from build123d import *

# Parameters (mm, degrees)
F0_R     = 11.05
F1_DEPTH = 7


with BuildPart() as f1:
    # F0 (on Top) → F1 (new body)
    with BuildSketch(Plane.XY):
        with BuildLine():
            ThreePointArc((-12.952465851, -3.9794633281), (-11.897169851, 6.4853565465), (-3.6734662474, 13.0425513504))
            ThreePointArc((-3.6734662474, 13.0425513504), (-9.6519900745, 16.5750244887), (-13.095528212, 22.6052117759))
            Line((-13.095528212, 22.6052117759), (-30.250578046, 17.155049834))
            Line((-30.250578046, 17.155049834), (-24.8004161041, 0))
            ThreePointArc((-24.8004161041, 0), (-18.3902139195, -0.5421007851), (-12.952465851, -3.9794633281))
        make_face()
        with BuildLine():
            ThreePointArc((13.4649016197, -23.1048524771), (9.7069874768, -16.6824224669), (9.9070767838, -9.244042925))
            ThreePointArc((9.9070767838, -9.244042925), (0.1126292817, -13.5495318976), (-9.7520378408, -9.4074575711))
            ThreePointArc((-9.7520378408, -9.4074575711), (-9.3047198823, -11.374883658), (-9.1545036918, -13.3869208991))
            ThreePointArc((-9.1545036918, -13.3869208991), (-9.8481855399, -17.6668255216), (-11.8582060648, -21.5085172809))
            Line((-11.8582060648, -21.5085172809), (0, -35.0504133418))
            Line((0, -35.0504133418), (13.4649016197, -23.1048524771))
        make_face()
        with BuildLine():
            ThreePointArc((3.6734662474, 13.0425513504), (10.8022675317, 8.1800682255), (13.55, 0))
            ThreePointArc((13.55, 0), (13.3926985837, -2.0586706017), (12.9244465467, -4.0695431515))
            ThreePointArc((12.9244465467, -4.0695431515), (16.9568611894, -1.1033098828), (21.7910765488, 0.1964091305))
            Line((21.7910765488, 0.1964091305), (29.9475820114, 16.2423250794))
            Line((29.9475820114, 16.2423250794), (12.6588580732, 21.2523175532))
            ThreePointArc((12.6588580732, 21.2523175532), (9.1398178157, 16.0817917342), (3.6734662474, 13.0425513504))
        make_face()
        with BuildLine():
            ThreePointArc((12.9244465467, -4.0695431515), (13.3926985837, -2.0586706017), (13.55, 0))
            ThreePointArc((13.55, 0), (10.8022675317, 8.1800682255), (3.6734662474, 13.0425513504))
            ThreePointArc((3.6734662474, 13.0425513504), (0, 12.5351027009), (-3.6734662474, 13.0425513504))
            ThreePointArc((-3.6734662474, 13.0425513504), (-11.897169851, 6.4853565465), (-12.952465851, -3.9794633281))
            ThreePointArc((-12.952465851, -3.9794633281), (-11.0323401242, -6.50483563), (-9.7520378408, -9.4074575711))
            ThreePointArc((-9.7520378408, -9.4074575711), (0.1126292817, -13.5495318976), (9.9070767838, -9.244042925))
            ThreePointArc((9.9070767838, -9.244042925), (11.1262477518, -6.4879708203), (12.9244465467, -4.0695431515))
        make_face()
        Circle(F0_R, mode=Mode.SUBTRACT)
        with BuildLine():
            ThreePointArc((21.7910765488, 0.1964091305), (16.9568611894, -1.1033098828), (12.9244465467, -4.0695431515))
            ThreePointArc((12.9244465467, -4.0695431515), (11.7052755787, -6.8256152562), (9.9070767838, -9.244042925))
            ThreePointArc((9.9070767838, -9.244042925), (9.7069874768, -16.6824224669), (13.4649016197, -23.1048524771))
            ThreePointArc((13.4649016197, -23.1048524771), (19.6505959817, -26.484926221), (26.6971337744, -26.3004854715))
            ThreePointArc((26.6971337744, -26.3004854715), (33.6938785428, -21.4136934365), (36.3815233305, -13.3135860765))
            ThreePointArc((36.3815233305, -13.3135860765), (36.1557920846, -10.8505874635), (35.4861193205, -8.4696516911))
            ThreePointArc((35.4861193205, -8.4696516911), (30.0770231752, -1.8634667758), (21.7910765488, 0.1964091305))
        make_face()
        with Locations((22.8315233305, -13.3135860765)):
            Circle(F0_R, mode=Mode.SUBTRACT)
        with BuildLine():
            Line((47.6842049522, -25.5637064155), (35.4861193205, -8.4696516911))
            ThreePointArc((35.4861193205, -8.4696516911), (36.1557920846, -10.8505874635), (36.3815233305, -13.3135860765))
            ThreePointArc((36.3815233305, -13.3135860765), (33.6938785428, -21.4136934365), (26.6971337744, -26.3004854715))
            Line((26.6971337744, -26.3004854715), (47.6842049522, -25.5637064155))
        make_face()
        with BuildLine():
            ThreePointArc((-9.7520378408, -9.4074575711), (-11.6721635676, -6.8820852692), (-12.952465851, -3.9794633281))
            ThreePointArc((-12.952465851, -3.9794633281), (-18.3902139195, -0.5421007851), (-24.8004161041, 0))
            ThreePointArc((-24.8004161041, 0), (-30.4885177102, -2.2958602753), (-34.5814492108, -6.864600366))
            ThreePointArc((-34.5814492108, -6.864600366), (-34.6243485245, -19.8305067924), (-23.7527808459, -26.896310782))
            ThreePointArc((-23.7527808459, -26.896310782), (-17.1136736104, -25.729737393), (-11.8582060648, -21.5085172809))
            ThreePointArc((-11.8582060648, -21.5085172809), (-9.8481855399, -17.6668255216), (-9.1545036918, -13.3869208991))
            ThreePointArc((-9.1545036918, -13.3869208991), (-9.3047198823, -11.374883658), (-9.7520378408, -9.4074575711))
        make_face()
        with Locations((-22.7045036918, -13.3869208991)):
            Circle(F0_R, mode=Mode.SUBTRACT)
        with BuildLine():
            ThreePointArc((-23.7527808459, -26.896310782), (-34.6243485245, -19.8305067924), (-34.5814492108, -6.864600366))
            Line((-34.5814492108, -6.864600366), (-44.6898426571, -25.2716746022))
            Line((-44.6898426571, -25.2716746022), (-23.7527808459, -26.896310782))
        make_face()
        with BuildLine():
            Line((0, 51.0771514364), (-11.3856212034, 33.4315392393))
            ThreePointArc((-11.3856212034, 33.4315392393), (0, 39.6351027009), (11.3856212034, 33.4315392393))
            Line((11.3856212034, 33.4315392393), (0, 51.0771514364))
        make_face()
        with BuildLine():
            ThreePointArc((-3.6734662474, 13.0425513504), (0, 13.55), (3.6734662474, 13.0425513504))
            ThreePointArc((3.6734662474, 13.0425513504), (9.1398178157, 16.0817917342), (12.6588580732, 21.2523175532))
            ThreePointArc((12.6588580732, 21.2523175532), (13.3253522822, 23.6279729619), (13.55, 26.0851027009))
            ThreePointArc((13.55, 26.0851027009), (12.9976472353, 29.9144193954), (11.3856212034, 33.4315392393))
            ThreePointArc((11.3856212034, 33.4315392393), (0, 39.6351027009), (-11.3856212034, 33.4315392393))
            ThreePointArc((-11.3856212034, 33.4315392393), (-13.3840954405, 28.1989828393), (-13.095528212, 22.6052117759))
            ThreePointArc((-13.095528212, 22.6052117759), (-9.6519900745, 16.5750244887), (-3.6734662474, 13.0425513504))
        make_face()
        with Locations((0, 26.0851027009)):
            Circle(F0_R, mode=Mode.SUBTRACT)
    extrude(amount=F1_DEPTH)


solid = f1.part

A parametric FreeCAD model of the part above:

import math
import FreeCAD as App
import Part
import Sketcher
Q = App.Units.Quantity

doc = App.newDocument("Part")
params = doc.addObject("Spreadsheet::Sheet", "Params")
for row, (alias, value) in enumerate([
    ("sketch1_diameter", "22.1 mm"),
    ("sketch1_radius", "13.55 mm"),
    ("sketch1_length", "18 mm"),
    ("sketch1_length2", "21 mm"),
    ("pad1_length", "7 mm"),
], start=1):
    params.set(f"A{row}", alias)
    params.set(f"B{row}", "=" + value)
    params.setAlias(f"B{row}", alias)

body = doc.addObject("PartDesign::Body", "Body")

sketch1 = doc.addObject("Sketcher::SketchObject", "Sketch")
body.addObject(sketch1)
sketch1.AttachmentSupport = (doc.XY_Plane, [""])
sketch1.MapMode = "FlatFace"
sketch1.addGeometry([
    Part.LineSegment(App.Vector(-13.1, 22.6, 0), App.Vector(-30.3, 17.2, 0)),
    Part.LineSegment(App.Vector(-30.3, 17.2, 0), App.Vector(-24.8, 0, 0)),
    Part.ArcOfCircle(Part.Circle(App.Vector(-22.7, -13.4, 0), App.Vector(0, 0, 1), 13.6), math.radians(99), math.radians(151)),
    Part.LineSegment(App.Vector(-34.6, -6.9, 0), App.Vector(-44.7, -25.3, 0)),
    Part.LineSegment(App.Vector(-44.7, -25.3, 0), App.Vector(-23.8, -26.9, 0)),
    Part.ArcOfCircle(Part.Circle(App.Vector(-22.7, -13.4, 0), App.Vector(0, 0, 1), 13.6), math.radians(-94), math.radians(-37)),
    Part.LineSegment(App.Vector(-11.9, -21.5, 0), App.Vector(0, -35.1, 0)),
    Part.LineSegment(App.Vector(0, -35.1, 0), App.Vector(13.5, -23.1, 0)),
    Part.ArcOfCircle(Part.Circle(App.Vector(22.8, -13.3, 0), App.Vector(0, 0, 1), 13.6), math.radians(-134), math.radians(-73)),
    Part.LineSegment(App.Vector(26.7, -26.3, 0), App.Vector(47.7, -25.6, 0)),
    Part.LineSegment(App.Vector(47.7, -25.6, 0), App.Vector(35.5, -8.5, 0)),
    Part.ArcOfCircle(Part.Circle(App.Vector(22.8, -13.3, 0), App.Vector(0, 0, 1), 13.6), math.radians(21), math.radians(94)),
    Part.LineSegment(App.Vector(21.8, 0.2, 0), App.Vector(29.9, 16.2, 0)),
    Part.LineSegment(App.Vector(29.9, 16.2, 0), App.Vector(12.7, 21.3, 0)),
    Part.ArcOfCircle(Part.Circle(App.Vector(0, 26.1, 0), App.Vector(0, 0, 1), 13.6), math.radians(-21), math.radians(0)),
    Part.ArcOfCircle(Part.Circle(App.Vector(0, 26.1, 0), App.Vector(0, 0, 1), 13.6), math.radians(0), math.radians(33)),
    Part.LineSegment(App.Vector(11.4, 33.4, 0), App.Vector(0, 51.1, 0)),
    Part.LineSegment(App.Vector(0, 51.1, 0), App.Vector(-11.4, 33.4, 0)),
    Part.ArcOfCircle(Part.Circle(App.Vector(0, 26.1, 0), App.Vector(0, 0, 1), 13.6), math.radians(147), math.radians(195)),
    Part.Circle(App.Vector(-22.7, -13.4, 0), App.Vector(0, 0, 1), 11.1),
    Part.ArcOfCircle(Part.Circle(App.Vector(-22.7, -13.4, 0), App.Vector(0, 0, 1), 13.5), math.radians(17), math.radians(44)),
    Part.ArcOfCircle(Part.Circle(App.Vector(0, 0, 0), App.Vector(0, 0, 1), 13.5), math.radians(-163), math.radians(-136)),
    Part.Circle(App.Vector(0, 0, 0), App.Vector(0, 0, 1), 11.1),
    Part.Circle(App.Vector(22.8, -13.3, 0), App.Vector(0, 0, 1), 11.1),
    Part.ArcOfCircle(Part.Circle(App.Vector(22.8, -13.3, 0), App.Vector(0, 0, 1), 13.6), math.radians(137), math.radians(163)),
    Part.ArcOfCircle(Part.Circle(App.Vector(0, 0, 0), App.Vector(0, 0, 1), 13.6), math.radians(-43), math.radians(-17)),
    Part.ArcOfCircle(Part.Circle(App.Vector(0, 26.1, 0), App.Vector(0, 0, 1), 13.6), math.radians(-106), math.radians(-74)),
    Part.ArcOfCircle(Part.Circle(App.Vector(0, 0, 0), App.Vector(0, 0, 1), 13.5), math.radians(74), math.radians(106)),
    Part.Circle(App.Vector(0, 26.1, 0), App.Vector(0, 0, 1), 11.1),
], False)
sketch1.addConstraint([
    Sketcher.Constraint("Coincident", 0, 2, 1, 1),
    Sketcher.Constraint("Coincident", 1, 2, 2, 1),
    Sketcher.Constraint("Tangent", 2, 2, 3, 1),
    Sketcher.Constraint("Coincident", 3, 2, 4, 1),
    Sketcher.Constraint("Tangent", 4, 2, 5, 1),
    Sketcher.Constraint("Coincident", 5, 2, 6, 1),
    Sketcher.Constraint("Coincident", 6, 2, 7, 1),
    Sketcher.Constraint("Coincident", 7, 2, 8, 1),
    Sketcher.Constraint("Coincident", 8, 2, 9, 1),
    Sketcher.Constraint("Coincident", 9, 2, 10, 1),
    Sketcher.Constraint("Coincident", 10, 2, 11, 1),
    Sketcher.Constraint("Coincident", 11, 2, 12, 1),
    Sketcher.Constraint("Coincident", 12, 2, 13, 1),
    Sketcher.Constraint("Coincident", 13, 2, 14, 1),
    Sketcher.Constraint("Tangent", 14, 2, 15, 1),
    Sketcher.Constraint("Tangent", 15, 2, 16, 1),
    Sketcher.Constraint("Coincident", 16, 2, 17, 1),
    Sketcher.Constraint("Tangent", 17, 2, 18, 1),
    Sketcher.Constraint("Coincident", 18, 2, 0, 1),
    Sketcher.Constraint("Coincident", 20, 1, 21, 2),
    Sketcher.Constraint("Coincident", 21, 1, 20, 2),
    Sketcher.Constraint("Coincident", 24, 1, 25, 2),
    Sketcher.Constraint("Coincident", 25, 1, 24, 2),
    Sketcher.Constraint("Coincident", 26, 1, 27, 2),
    Sketcher.Constraint("Coincident", 27, 1, 26, 2),
    Sketcher.Constraint("Coincident", 21, 3, -1, 1),
    Sketcher.Constraint("Coincident", 22, 3, -1, 1),
    Sketcher.Constraint("Coincident", 25, 3, -1, 1),
    Sketcher.Constraint("Coincident", 27, 3, -1, 1),
    Sketcher.Constraint("Coincident", 5, 3, 2, 3),
    Sketcher.Constraint("Coincident", 11, 3, 8, 3),
    Sketcher.Constraint("Coincident", 18, 3, 14, 3),
    Sketcher.Constraint("Coincident", 19, 3, 2, 3),
    Sketcher.Constraint("Coincident", 20, 3, 2, 3),
    Sketcher.Constraint("Coincident", 23, 3, 8, 3),
    Sketcher.Constraint("Coincident", 24, 3, 8, 3),
    Sketcher.Constraint("Coincident", 26, 3, 14, 3),
    Sketcher.Constraint("Coincident", 28, 3, 14, 3),
    Sketcher.Constraint("Equal", 2, 5),
    Sketcher.Constraint("Equal", 5, 8),
    Sketcher.Constraint("Equal", 8, 11),
    Sketcher.Constraint("Equal", 11, 14),
    Sketcher.Constraint("Equal", 14, 15),
    Sketcher.Constraint("Equal", 15, 18),
    Sketcher.Constraint("Equal", 18, 20),
    Sketcher.Constraint("Equal", 20, 21),
    Sketcher.Constraint("Equal", 19, 22),
    Sketcher.Constraint("Equal", 22, 23),
    Sketcher.Constraint("Equal", 21, 24),
    Sketcher.Constraint("Equal", 24, 25),
    Sketcher.Constraint("Equal", 25, 26),
    Sketcher.Constraint("Equal", 26, 27),
    Sketcher.Constraint("Equal", 23, 28),
    Sketcher.Constraint("Symmetric", 15, 2, 17, 2, -2),
    Sketcher.Constraint("PointOnObject", 1, 2, -1),
    Sketcher.Constraint("PointOnObject", 6, 2, -2),
    Sketcher.Constraint("Perpendicular", 0, 1),
    Sketcher.Constraint("Horizontal", 28, 3, 14, 2),
    Sketcher.Constraint("Equal", 0, 1),
    Sketcher.Constraint("Equal", 1, 6),
    Sketcher.Constraint("Equal", 6, 7),
    Sketcher.Constraint("Equal", 4, 9),
    Sketcher.Constraint("Equal", 9, 10),
    Sketcher.Constraint("Equal", 7, 12),
    Sketcher.Constraint("Equal", 12, 13),
    Sketcher.Constraint("Equal", 10, 16),
    Sketcher.Constraint("Diameter", 19, Q("22.1 mm")),
    Sketcher.Constraint("Radius", 2, Q("13.55 mm")),
    Sketcher.Constraint("Distance", 0, Q("18 mm")),
    Sketcher.Constraint("Distance", 3, Q("21 mm")),
    Sketcher.Constraint("DistanceY", 2, 2, -1, 1, Q("6.8646 mm")),
    Sketcher.Constraint("DistanceX", -1, 1, 7, 2, Q("13.464902 mm")),
    Sketcher.Constraint("DistanceY", 8, 2, 24, 3, Q("12.986899 mm")),
    Sketcher.Constraint("DistanceY", 25, 1, 24, 1, Q("5.1745 mm")),
    Sketcher.Constraint("DistanceY", 2, 3, -1, 1, Q("13.386921 mm")),
    Sketcher.Constraint("DistanceX", 0, 2, -1, 1, Q("30.250578 mm")),
    Sketcher.Constraint("DistanceY", -1, 1, 0, 2, Q("17.15505 mm")),
    Sketcher.Constraint("DistanceX", -1, 1, 10, 2, Q("35.486119 mm")),
    Sketcher.Constraint("DistanceY", 10, 2, -1, 1, Q("8.469652 mm")),
    Sketcher.Constraint("DistanceY", -1, 1, 11, 2, Q("0.196409 mm")),
    Sketcher.Constraint("DistanceX", -1, 1, 13, 2, Q("12.658858 mm")),
])
sketch1.setExpression("Constraints[66]", "Params.sketch1_diameter")
sketch1.setExpression("Constraints[67]", "Params.sketch1_radius")
sketch1.setExpression("Constraints[68]", "Params.sketch1_length")
sketch1.setExpression("Constraints[69]", "Params.sketch1_length2")
pad1 = doc.addObject("PartDesign::Pad", "Pad")
body.addObject(pad1)
pad1.Profile = sketch1
pad1.setExpression("Length", "Params.pad1_length")

doc.recompute()
